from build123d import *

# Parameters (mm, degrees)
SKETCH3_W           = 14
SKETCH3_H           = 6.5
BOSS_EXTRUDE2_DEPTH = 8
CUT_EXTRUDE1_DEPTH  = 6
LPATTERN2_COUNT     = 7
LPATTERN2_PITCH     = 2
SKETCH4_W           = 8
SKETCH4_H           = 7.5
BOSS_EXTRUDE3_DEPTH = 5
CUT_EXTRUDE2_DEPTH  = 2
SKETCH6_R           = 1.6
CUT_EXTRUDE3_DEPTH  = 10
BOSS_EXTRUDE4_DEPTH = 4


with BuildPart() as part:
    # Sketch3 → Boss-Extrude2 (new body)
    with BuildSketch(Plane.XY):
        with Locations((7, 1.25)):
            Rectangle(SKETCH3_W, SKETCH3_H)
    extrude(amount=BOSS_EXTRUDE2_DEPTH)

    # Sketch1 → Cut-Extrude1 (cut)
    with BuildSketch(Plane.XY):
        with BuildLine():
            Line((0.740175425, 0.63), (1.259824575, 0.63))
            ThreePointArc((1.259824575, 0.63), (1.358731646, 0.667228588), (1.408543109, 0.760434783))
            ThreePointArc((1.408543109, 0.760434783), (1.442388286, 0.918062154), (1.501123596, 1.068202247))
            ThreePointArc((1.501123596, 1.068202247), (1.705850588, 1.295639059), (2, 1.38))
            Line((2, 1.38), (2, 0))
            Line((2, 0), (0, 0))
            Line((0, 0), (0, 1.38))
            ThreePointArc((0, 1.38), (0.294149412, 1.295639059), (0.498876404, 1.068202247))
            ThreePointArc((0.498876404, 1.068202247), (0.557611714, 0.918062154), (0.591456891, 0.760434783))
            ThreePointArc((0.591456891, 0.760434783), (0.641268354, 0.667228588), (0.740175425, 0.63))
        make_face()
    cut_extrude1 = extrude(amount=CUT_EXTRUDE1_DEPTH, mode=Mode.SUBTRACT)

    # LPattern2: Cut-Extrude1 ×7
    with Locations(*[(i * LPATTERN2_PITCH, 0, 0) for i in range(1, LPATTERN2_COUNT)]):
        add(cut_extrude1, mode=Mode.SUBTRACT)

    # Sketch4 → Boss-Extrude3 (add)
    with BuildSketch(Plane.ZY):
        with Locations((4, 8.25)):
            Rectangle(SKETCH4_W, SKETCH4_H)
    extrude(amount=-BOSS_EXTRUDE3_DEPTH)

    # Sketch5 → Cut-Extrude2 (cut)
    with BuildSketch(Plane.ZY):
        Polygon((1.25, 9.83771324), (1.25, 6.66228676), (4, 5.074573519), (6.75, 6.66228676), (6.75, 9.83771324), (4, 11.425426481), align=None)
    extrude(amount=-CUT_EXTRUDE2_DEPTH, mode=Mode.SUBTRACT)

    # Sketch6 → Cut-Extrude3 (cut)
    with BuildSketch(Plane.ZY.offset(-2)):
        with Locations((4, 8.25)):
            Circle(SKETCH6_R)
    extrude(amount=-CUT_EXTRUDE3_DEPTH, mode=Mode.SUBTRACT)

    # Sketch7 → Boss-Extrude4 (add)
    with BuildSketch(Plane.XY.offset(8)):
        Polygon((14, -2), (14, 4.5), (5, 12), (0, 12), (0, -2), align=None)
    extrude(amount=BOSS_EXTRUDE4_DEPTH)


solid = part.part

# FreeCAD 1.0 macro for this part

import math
import FreeCAD as App
import Part
import Sketcher

V = App.Vector
Q = App.Units.Quantity


def add_polygon(sketch, points):
    """Adds a closed chain of lines whose ends are joined by coincident constraints."""
    first, n = sketch.GeometryCount, len(points)
    for a, b in zip(points, points[1:] + points[:1]):
        sketch.addGeometry(Part.LineSegment(App.Vector(*a, 0), App.Vector(*b, 0)), False)
    for i in range(n):
        sketch.addConstraint(Sketcher.Constraint("Coincident", first + i, 2, first + (i + 1) % n, 1))

doc = App.newDocument("Part")
body = doc.addObject("PartDesign::Body", "Body")

# Sketch on XY plane
sketch1 = body.newObject("Sketcher::SketchObject", "Sketch")
sketch1.AttachmentSupport = (doc.getObject("XY_Plane"), [""])
sketch1.MapMode = "FlatFace"
add_polygon(sketch1, [(0, 4.5), (0, -2), (14, -2), (14, 4.5)])  # lines 0-3
sketch1.addConstraint([
    Sketcher.Constraint("Vertical", 0),
    Sketcher.Constraint("Horizontal", 1),
    Sketcher.Constraint("Vertical", 2),
    Sketcher.Constraint("Horizontal", 3),
    Sketcher.Constraint("PointOnObject", 0, 2, -2),
    Sketcher.Constraint("DistanceX", 1, 1, 1, 2, 14.0),
    Sketcher.Constraint("DistanceY", 0, 2, 0, 1, 6.5),
    Sketcher.Constraint("DistanceY", 0, 2, -1, 1, 2.0),
])
pad1 = body.newObject("PartDesign::Pad", "Pad")
pad1.Profile = sketch1
pad1.Length = 8

# Sketch on XY plane
sketch2 = body.newObject("Sketcher::SketchObject", "Sketch001")
sketch2.AttachmentSupport = (doc.getObject("XY_Plane"), [""])
sketch2.MapMode = "FlatFace"
sketch2.addGeometry([
    Part.LineSegment(V(1.259825, 0.63, 0), V(0.740175, 0.63, 0)),  # 0
    Part.ArcOfCircle(Part.Circle(V(0.740175, 0.78, 0), V(0, 0, 1), 0.15), math.radians(-172.505283), math.radians(-90)),  # 1
    Part.ArcOfCircle(Part.Circle(V(-0.4, 0.63, 0), V(0, 0, 1), 1), math.radians(7.494717), math.radians(25.989234)),  # 2
    Part.ArcOfCircle(Part.Circle(V(0, 0.825, 0), V(0, 0, 1), 0.555), math.radians(25.989233), math.radians(90)),  # 3
    Part.LineSegment(V(0, 1.38, 0), V(0, 0, 0)),  # 4
    Part.LineSegment(V(0, 0, 0), V(2, 0, 0)),  # 5
    Part.LineSegment(V(2, 0, 0), V(2, 1.38, 0)),  # 6
    Part.ArcOfCircle(Part.Circle(V(2, 0.825, 0), V(0, 0, 1), 0.555), math.radians(90), math.radians(154.010767)),  # 7
    Part.ArcOfCircle(Part.Circle(V(2.4, 0.63, 0), V(0, 0, 1), 1), math.radians(154.010766), math.radians(172.505283)),  # 8
    Part.ArcOfCircle(Part.Circle(V(1.259825, 0.78, 0), V(0, 0, 1), 0.15), math.radians(-90), math.radians(-7.494717)),  # 9
], False)
sketch2.addConstraint([
    Sketcher.Constraint("Tangent", 0, 2, 1, 2),
    Sketcher.Constraint("Tangent", 1, 1, 2, 1),
    Sketcher.Constraint("Tangent", 2, 2, 3, 1),
    Sketcher.Constraint("Coincident", 3, 2, 4, 1),
    Sketcher.Constraint("Coincident", 4, 2, 5, 1),
    Sketcher.Constraint("Coincident", 5, 2, 6, 1),
    Sketcher.Constraint("Coincident", 6, 2, 7, 1),
    Sketcher.Constraint("Tangent", 7, 2, 8, 1),
    Sketcher.Constraint("Tangent", 8, 2, 9, 2),
    Sketcher.Constraint("Tangent", 9, 1, 0, 1),
    Sketcher.Constraint("Horizontal", 0),
    Sketcher.Constraint("Vertical", 4),
    Sketcher.Constraint("Horizontal", 5),
    Sketcher.Constraint("Vertical", 6),
    Sketcher.Constraint("Coincident", 4, 2, -1, 1),
    Sketcher.Constraint("Equal", 3, 7),
    Sketcher.Constraint("Equal", 2, 8),
    Sketcher.Constraint("Equal", 1, 9),
    Sketcher.Constraint("PointOnObject", 3, 3, -2),
    Sketcher.Constraint("Horizontal", 3, 3, 7, 3),
    Sketcher.Constraint("Horizontal", 2, 3, 8, 3),
    Sketcher.Constraint("Horizontal", 8, 3, 0, 2),
    Sketcher.Constraint("Vertical", 7, 3, 5, 2),
    Sketcher.Constraint("Radius", 2, 1.0),
    Sketcher.Constraint("DistanceX", 5, 1, 5, 2, 2.0),
    Sketcher.Constraint("Radius", 1, 0.15),
    Sketcher.Constraint("Radius", 3, 0.555),
    Sketcher.Constraint("DistanceY", 4, 2, 4, 1, 1.38),
    Sketcher.Constraint("DistanceX", 2, 3, -1, 1, 0.4),
])
pocket1 = body.newObject("PartDesign::Pocket", "Pocket")
pocket1.Profile = sketch2
pocket1.Length = 6
pocket1.Reversed = True
doc.recompute()

linearpattern = body.newObject("PartDesign::LinearPattern", "LinearPattern")
linearpattern.Originals = [pocket1]
linearpattern.Direction = (doc.getObject("X_Axis"), [""])
linearpattern.Mode = "offset"
linearpattern.Offset = 2
linearpattern.Occurrences = 7
body.Tip = linearpattern

# Sketch on YZ plane
sketch3 = body.newObject("Sketcher::SketchObject", "Sketch002")
sketch3.AttachmentSupport = (doc.getObject("YZ_Plane"), [""])
sketch3.MapMode = "FlatFace"
add_polygon(sketch3, [(12, 0), (4.5, 0), (4.5, 8), (12, 8)])  # lines 0-3
sketch3.addConstraint([
    Sketcher.Constraint("Horizontal", 0),
    Sketcher.Constraint("Vertical", 1),
    Sketcher.Constraint("Horizontal", 2),
    Sketcher.Constraint("Vertical", 3),
    Sketcher.Constraint("PointOnObject", 0, 2, -1),
    Sketcher.Constraint("DistanceY", 1, 1, 1, 2, 8.0),
    Sketcher.Constraint("DistanceX", 0, 2, 0, 1, 7.5),
    Sketcher.Constraint("DistanceX", -1, 1, 2, 2, 12.0),
])
pad2 = body.newObject("PartDesign::Pad", "Pad001")
pad2.Profile = sketch3
pad2.Length = 5

# Sketch on YZ plane
sketch4 = body.newObject("Sketcher::SketchObject", "Sketch003")
sketch4.AttachmentSupport = (doc.getObject("YZ_Plane"), [""])
sketch4.MapMode = "FlatFace"
add_polygon(sketch4, [(9.837713, 1.25), (6.662287, 1.25), (5.074574, 4), (6.662287, 6.75), (9.837713, 6.75), (11.425426, 4)])  # lines 0-5
sketch4.addConstraint([
    Sketcher.Constraint("Horizontal", 0),
    Sketcher.Constraint("Horizontal", 3),
    Sketcher.Constraint("Parallel", 1, 4),
    Sketcher.Constraint("Parallel", 2, 5),
    Sketcher.Constraint("Horizontal", 1, 2, 4, 2),
    Sketcher.Constraint("Vertical", 0, 2, 2, 2),
    Sketcher.Constraint("Vertical", 3, 2, 5, 2),
    Sketcher.Constraint("Angle", 1, Q("120 deg")),
    Sketcher.Constraint("DistanceY", -1, 1, 1, 2, 4.0),
    Sketcher.Constraint("DistanceY", 0, 2, 2, 2, 5.5),
    Sketcher.Constraint("DistanceX", 0, 2, 0, 1, 3.175426),
    Sketcher.Constraint("DistanceX", -1, 1, 0, 2, 6.662287),
])
pocket2 = body.newObject("PartDesign::Pocket", "Pocket001")
pocket2.Profile = sketch4
pocket2.Length = 2
pocket2.Reversed = True

# Sketch on YZ plane
sketch5 = body.newObject("Sketcher::SketchObject", "Sketch004")
sketch5.AttachmentSupport = (doc.getObject("YZ_Plane"), [""])
sketch5.MapMode = "FlatFace"
sketch5.AttachmentOffset = App.Placement(V(0, 0, 2), App.Rotation())
sketch5.addGeometry(Part.Circle(V(8.25, 4, 0), V(0, 0, 1), 1.6), False)
sketch5.addConstraint([
    Sketcher.Constraint("Diameter", 0, 3.2),
    Sketcher.Constraint("DistanceY", -1, 1, 0, 3, 4.0),
    Sketcher.Constraint("DistanceX", -1, 1, 0, 3, 8.25),
])
pocket3 = body.newObject("PartDesign::Pocket", "Pocket002")
pocket3.Profile = sketch5
pocket3.Length = 10
pocket3.Reversed = True

# Sketch on XY plane
sketch6 = body.newObject("Sketcher::SketchObject", "Sketch005")
sketch6.AttachmentSupport = (doc.getObject("XY_Plane"), [""])
sketch6.MapMode = "FlatFace"
sketch6.AttachmentOffset = App.Placement(V(0, 0, 8), App.Rotation())
add_polygon(sketch6, [(14, -2), (14, 4.5), (5, 12), (0, 12), (0, -2)])  # lines 0-4
sketch6.addConstraint([
    Sketcher.Constraint("Vertical", 0),
    Sketcher.Constraint("Horizontal", 2),
    Sketcher.Constraint("Vertical", 3),
    Sketcher.Constraint("Horizontal", 4),
    Sketcher.Constraint("PointOnObject", 2, 2, -2),
    Sketcher.Constraint("Equal", 4, 3),
    Sketcher.Constraint("DistanceX", 2, 2, 2, 1, 5.0),
    Sketcher.Constraint("DistanceX", 4, 1, 4, 2, 14.0),
    Sketcher.Constraint("DistanceY", 0, 1, 0, 2, 6.5),
    Sketcher.Constraint("DistanceY", -1, 1, 1, 2, 12.0),
])
pad3 = body.newObject("PartDesign::Pad", "Pad002")
pad3.Profile = sketch6
pad3.Length = 4

doc.recompute()
